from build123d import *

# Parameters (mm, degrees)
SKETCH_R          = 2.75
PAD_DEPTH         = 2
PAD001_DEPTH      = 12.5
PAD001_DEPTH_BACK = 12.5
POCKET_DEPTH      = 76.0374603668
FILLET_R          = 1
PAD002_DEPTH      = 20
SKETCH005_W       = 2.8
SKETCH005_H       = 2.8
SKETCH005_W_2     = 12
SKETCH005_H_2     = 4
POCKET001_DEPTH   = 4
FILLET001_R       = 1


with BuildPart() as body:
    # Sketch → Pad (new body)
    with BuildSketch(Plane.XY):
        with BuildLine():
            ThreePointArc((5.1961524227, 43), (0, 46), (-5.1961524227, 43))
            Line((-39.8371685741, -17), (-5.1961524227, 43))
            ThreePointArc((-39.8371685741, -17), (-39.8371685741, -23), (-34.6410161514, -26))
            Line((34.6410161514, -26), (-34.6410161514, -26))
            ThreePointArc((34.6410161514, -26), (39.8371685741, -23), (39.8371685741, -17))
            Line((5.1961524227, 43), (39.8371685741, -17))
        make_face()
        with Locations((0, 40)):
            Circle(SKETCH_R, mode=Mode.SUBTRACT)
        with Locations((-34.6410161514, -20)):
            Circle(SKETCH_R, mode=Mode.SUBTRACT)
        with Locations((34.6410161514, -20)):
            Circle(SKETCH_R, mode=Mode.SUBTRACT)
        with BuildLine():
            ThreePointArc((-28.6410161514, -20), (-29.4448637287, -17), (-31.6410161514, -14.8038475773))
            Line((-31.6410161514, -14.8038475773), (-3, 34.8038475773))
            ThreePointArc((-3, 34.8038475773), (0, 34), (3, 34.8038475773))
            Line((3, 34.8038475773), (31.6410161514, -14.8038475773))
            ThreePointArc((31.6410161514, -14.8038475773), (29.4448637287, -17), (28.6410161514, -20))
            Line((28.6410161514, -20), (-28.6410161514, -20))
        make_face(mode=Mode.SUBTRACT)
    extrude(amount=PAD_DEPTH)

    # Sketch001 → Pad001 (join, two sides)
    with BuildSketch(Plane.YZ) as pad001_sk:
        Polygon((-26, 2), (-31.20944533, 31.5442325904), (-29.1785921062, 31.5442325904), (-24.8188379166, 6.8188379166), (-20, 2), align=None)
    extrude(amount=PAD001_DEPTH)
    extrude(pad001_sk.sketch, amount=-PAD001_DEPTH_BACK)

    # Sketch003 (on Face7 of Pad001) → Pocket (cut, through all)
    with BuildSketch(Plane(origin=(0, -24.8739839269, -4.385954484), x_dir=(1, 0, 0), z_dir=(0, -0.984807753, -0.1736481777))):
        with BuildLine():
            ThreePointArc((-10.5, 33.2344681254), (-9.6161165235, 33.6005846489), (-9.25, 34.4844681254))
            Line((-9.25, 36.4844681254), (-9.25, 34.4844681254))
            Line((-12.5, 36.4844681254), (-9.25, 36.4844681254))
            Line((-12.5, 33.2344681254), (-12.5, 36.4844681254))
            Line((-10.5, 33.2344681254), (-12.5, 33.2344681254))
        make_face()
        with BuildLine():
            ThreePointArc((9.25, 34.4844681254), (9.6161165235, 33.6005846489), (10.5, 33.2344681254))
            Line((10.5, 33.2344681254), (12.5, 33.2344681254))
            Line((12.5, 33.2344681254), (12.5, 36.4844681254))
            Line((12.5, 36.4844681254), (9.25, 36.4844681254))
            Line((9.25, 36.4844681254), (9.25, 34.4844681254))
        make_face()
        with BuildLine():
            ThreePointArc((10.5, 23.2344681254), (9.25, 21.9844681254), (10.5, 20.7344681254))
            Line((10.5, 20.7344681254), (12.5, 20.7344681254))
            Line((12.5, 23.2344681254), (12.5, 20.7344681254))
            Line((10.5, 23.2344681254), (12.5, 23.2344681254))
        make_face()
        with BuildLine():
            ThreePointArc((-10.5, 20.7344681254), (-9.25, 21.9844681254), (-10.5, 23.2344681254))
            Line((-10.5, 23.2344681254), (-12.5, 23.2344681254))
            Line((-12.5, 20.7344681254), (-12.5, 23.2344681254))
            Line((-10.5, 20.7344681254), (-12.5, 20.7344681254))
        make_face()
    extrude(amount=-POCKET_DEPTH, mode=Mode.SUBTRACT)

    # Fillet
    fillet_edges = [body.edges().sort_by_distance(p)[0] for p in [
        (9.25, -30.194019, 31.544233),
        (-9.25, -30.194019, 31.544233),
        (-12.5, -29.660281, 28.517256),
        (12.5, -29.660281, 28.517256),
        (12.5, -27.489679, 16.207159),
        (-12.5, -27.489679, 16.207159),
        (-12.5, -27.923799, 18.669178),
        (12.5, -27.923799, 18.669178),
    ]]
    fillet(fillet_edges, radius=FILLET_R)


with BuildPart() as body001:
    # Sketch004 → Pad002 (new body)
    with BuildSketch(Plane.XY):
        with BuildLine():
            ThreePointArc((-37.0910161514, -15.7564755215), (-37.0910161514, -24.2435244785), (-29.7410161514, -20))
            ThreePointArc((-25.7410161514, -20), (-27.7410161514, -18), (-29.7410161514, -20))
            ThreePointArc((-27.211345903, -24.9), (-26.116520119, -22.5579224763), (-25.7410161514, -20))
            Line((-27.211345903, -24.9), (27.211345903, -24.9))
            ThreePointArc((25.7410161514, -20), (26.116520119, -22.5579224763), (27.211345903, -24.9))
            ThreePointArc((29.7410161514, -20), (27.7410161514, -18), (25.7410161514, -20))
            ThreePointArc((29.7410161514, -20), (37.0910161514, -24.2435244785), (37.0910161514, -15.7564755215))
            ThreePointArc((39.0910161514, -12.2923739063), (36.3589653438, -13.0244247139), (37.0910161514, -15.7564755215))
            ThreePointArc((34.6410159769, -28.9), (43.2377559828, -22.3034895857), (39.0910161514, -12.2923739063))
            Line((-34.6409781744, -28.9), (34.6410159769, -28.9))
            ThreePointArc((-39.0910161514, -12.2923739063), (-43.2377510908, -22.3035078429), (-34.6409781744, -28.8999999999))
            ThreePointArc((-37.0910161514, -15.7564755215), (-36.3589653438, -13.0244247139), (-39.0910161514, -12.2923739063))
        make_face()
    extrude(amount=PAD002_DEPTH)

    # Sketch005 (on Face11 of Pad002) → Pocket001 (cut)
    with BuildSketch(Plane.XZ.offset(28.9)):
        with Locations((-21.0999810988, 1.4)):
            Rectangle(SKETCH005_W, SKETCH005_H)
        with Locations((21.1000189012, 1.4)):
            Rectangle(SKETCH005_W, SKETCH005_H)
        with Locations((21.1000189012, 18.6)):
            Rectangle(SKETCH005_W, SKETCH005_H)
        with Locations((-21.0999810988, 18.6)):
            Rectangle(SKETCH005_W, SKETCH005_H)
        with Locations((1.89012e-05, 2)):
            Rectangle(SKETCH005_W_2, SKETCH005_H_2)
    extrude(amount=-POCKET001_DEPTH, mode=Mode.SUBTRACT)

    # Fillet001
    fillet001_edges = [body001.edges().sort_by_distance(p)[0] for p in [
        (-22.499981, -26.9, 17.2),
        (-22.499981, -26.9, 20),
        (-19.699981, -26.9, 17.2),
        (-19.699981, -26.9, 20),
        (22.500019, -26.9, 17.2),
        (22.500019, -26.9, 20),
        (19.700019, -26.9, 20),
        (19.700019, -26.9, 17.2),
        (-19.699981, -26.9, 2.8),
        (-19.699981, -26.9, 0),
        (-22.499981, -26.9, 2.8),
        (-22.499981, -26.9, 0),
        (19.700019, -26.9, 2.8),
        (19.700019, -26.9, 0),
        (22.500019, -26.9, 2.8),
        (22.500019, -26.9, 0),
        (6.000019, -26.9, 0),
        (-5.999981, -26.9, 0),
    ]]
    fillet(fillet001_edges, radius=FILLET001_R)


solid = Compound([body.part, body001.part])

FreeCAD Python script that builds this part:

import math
import FreeCAD as App
import Part
import Sketcher
Q = App.Units.Quantity


def edges_at(feature, points):
    """Names of the edges that pass closest to the given points."""
    edges = feature.Shape.Edges
    near = lambda p: min(range(len(edges)), key=lambda i: edges[i].distToShape(Part.Vertex(*p))[0])
    return sorted({f"Edge{near(p) + 1}" for p in points})

doc = App.newDocument("Part")
body = doc.addObject("PartDesign::Body", "Body")

sketch1 = body.newObject("Sketcher::SketchObject", "Sketch")
sketch1.AttachmentSupport = (doc.getObject("XY_Plane"), [""])
sketch1.MapMode = "FlatFace"
sketch1.addGeometry([
    Part.ArcOfCircle(Part.Circle(App.Vector(0, 40, 0), App.Vector(0, 0, 1), 6), math.radians(30), math.radians(150)),
    Part.LineSegment(App.Vector(-5.196152, 43, 0), App.Vector(-39.837169, -17, 0)),
    Part.ArcOfCircle(Part.Circle(App.Vector(-34.641016, -20, 0), App.Vector(0, 0, 1), 6), math.radians(150), math.radians(270)),
    Part.LineSegment(App.Vector(-34.641016, -26, 0), App.Vector(34.641016, -26, 0)),
    Part.ArcOfCircle(Part.Circle(App.Vector(34.641016, -20, 0), App.Vector(0, 0, 1), 6), math.radians(-90), math.radians(30)),
    Part.LineSegment(App.Vector(39.837169, -17, 0), App.Vector(5.196152, 43, 0)),
    Part.Circle(App.Vector(-34.641016, -20, 0), App.Vector(0, 0, 1), 2.75),
    Part.Circle(App.Vector(34.641016, -20, 0), App.Vector(0, 0, 1), 2.75),
    Part.LineSegment(App.Vector(28.641016, -20, 0), App.Vector(-28.641016, -20, 0)),
    Part.ArcOfCircle(Part.Circle(App.Vector(-34.641016, -20, 0), App.Vector(0, 0, 1), 6), math.radians(0), math.radians(60)),
    Part.LineSegment(App.Vector(-31.641016, -14.803848, 0), App.Vector(-3, 34.803848, 0)),
    Part.ArcOfCircle(Part.Circle(App.Vector(0, 40, 0), App.Vector(0, 0, 1), 6), math.radians(-120), math.radians(-60)),
    Part.LineSegment(App.Vector(3, 34.803848, 0), App.Vector(31.641016, -14.803848, 0)),
    Part.ArcOfCircle(Part.Circle(App.Vector(34.641016, -20, 0), App.Vector(0, 0, 1), 6), math.radians(120), math.radians(180)),
    Part.Circle(App.Vector(0, 40, 0), App.Vector(0, 0, 1), 2.75),
], False)
sketch1.addConstraint([
    Sketcher.Constraint("Tangent", 0, 2, 1, 1),
    Sketcher.Constraint("Tangent", 1, 2, 2, 1),
    Sketcher.Constraint("Tangent", 2, 2, 3, 1),
    Sketcher.Constraint("Tangent", 3, 2, 4, 1),
    Sketcher.Constraint("Tangent", 4, 2, 5, 1),
    Sketcher.Constraint("Tangent", 5, 2, 0, 1),
    Sketcher.Constraint("Coincident", 8, 2, 9, 1),
    Sketcher.Constraint("Coincident", 9, 2, 10, 1),
    Sketcher.Constraint("Coincident", 10, 2, 11, 1),
    Sketcher.Constraint("Coincident", 11, 2, 12, 1),
    Sketcher.Constraint("Coincident", 12, 2, 13, 1),
    Sketcher.Constraint("Coincident", 13, 2, 8, 1),
    Sketcher.Constraint("Horizontal", 3),
    Sketcher.Constraint("Horizontal", 8),
    Sketcher.Constraint("Coincident", 6, 3, 2, 3),
    Sketcher.Constraint("Coincident", 7, 3, 4, 3),
    Sketcher.Constraint("Coincident", 9, 3, 2, 3),
    Sketcher.Constraint("Coincident", 11, 3, 0, 3),
    Sketcher.Constraint("Coincident", 13, 3, 4, 3),
    Sketcher.Constraint("Coincident", 14, 3, 0, 3),
    Sketcher.Constraint("Equal", 0, 2),
    Sketcher.Constraint("Equal", 2, 4),
    Sketcher.Constraint("Equal", 6, 7),
    Sketcher.Constraint("Equal", 4, 9),
    Sketcher.Constraint("Equal", 9, 11),
    Sketcher.Constraint("Equal", 11, 13),
    Sketcher.Constraint("Equal", 7, 14),
    Sketcher.Constraint("Symmetric", 1, 2, 4, 2, -2),
    Sketcher.Constraint("Parallel", 1, 10),
    Sketcher.Constraint("Parallel", 5, 12),
    Sketcher.Constraint("Horizontal", 13, 3, 8, 2),
    Sketcher.Constraint("Horizontal", 10, 2, 11, 2),
    Sketcher.Constraint("Radius", 0, 6.0),
    Sketcher.Constraint("Diameter", 6, 5.5),
    Sketcher.Constraint("Angle", 1, Q("-120 deg")),
    Sketcher.Constraint("DistanceY", -1, 1, 0, 3, 40.0),
    Sketcher.Constraint("DistanceY", 2, 3, -1, 1, 20.0),
    Sketcher.Constraint("DistanceX", 10, 2, -1, 1, 3.0),
])
pad1 = body.newObject("PartDesign::Pad", "Pad")
pad1.Profile = sketch1
pad1.Length = 2

sketch2 = body.newObject("Sketcher::SketchObject", "Sketch001")
sketch2.AttachmentSupport = (doc.getObject("YZ_Plane"), [""])
sketch2.MapMode = "FlatFace"
sketch2.addGeometry([
    Part.LineSegment(App.Vector(-31.209445, 31.544233, 0), App.Vector(-26, 2, 0)),
    Part.LineSegment(App.Vector(-26, 2, 0), App.Vector(-20, 2, 0)),
    Part.LineSegment(App.Vector(-20, 2, 0), App.Vector(-24.818838, 6.818838, 0)),
    Part.LineSegment(App.Vector(-24.818838, 6.818838, 0), App.Vector(-29.178592, 31.544233, 0)),
    Part.LineSegment(App.Vector(-29.178592, 31.544233, 0), App.Vector(-31.209445, 31.544233, 0)),
], False)
sketch2.addConstraint([
    Sketcher.Constraint("Coincident", 0, 2, 1, 1),
    Sketcher.Constraint("Coincident", 1, 2, 2, 1),
    Sketcher.Constraint("Coincident", 2, 2, 3, 1),
    Sketcher.Constraint("Coincident", 3, 2, 4, 1),
    Sketcher.Constraint("Coincident", 4, 2, 0, 1),
    Sketcher.Constraint("Horizontal", 1),
    Sketcher.Constraint("Horizontal", 4),
    Sketcher.Constraint("Parallel", 0, 3),
    Sketcher.Constraint("DistanceX", 1, 1, 1, 2, 6.0),
    Sketcher.Constraint("Angle", 0, Q("-80 deg")),
    Sketcher.Constraint("Angle", 2, Q("135 deg")),
    Sketcher.Constraint("Distance", 0, 30.0),
    Sketcher.Constraint("DistanceX", 0, 2, -1, 1, 26.0),
    Sketcher.Constraint("DistanceY", -1, 1, 0, 2, 2.0),
    Sketcher.Constraint("DistanceX", 4, 2, 4, 1, 2.030853),
])
pad2 = body.newObject("PartDesign::Pad", "Pad001")
pad2.Profile = sketch2
pad2.Type = "TwoLengths"
pad2.Length = 12.5
pad2.Length2 = 12.5

sketch3 = body.newObject("Sketcher::SketchObject", "Sketch002")
sketch3.Placement = App.Placement(App.Vector(0, -24.873984, -4.385954), App.Rotation(App.Vector(1, 0, 0), App.Vector(0, -0.173648178, 0.984807753), App.Vector(0, -0.984807753, -0.173648178), "ZXY"))
sketch3.addGeometry([
    Part.ArcOfCircle(Part.Circle(App.Vector(-10.5, 34.484468, 0), App.Vector(0, 0, 1), 1.25), math.radians(-90), math.radians(0)),
    Part.LineSegment(App.Vector(-9.25, 34.484468, 0), App.Vector(-9.25, 36.484468, 0)),
    Part.LineSegment(App.Vector(-9.25, 36.484468, 0), App.Vector(-12.5, 36.484468, 0)),
    Part.LineSegment(App.Vector(-12.5, 36.484468, 0), App.Vector(-12.5, 33.234468, 0)),
    Part.LineSegment(App.Vector(-12.5, 33.234468, 0), App.Vector(-10.5, 33.234468, 0)),
    Part.ArcOfCircle(Part.Circle(App.Vector(10.5, 34.484468, 0), App.Vector(0, 0, 1), 1.25), math.radians(180), math.radians(270)),
    Part.LineSegment(App.Vector(10.5, 33.234468, 0), App.Vector(12.5, 33.234468, 0)),
    Part.LineSegment(App.Vector(12.5, 33.234468, 0), App.Vector(12.5, 36.484468, 0)),
    Part.LineSegment(App.Vector(12.5, 36.484468, 0), App.Vector(9.25, 36.484468, 0)),
    Part.LineSegment(App.Vector(9.25, 36.484468, 0), App.Vector(9.25, 34.484468, 0)),
    Part.ArcOfCircle(Part.Circle(App.Vector(10.5, 21.984468, 0), App.Vector(0, 0, 1), 1.25), math.radians(90), math.radians(270)),
    Part.LineSegment(App.Vector(10.5, 20.734468, 0), App.Vector(12.5, 20.734468, 0)),
    Part.LineSegment(App.Vector(12.5, 20.734468, 0), App.Vector(12.5, 23.234468, 0)),
    Part.LineSegment(App.Vector(12.5, 23.234468, 0), App.Vector(10.5, 23.234468, 0)),
    Part.ArcOfCircle(Part.Circle(App.Vector(-10.5, 21.984468, 0), App.Vector(0, 0, 1), 1.25), math.radians(-90), math.radians(90)),
    Part.LineSegment(App.Vector(-10.5, 23.234468, 0), App.Vector(-12.5, 23.234468, 0)),
    Part.LineSegment(App.Vector(-12.5, 23.234468, 0), App.Vector(-12.5, 20.734468, 0)),
    Part.LineSegment(App.Vector(-12.5, 20.734468, 0), App.Vector(-10.5, 20.734468, 0)),
], False)
sketch3.addConstraint([
    Sketcher.Constraint("Tangent", 0, 2, 1, 1),
    Sketcher.Constraint("Coincident", 1, 2, 2, 1),
    Sketcher.Constraint("Coincident", 2, 2, 3, 1),
    Sketcher.Constraint("Coincident", 3, 2, 4, 1),
    Sketcher.Constraint("Tangent", 4, 2, 0, 1),
    Sketcher.Constraint("Tangent", 5, 2, 6, 1),
    Sketcher.Constraint("Coincident", 6, 2, 7, 1),
    Sketcher.Constraint("Coincident", 7, 2, 8, 1),
    Sketcher.Constraint("Coincident", 8, 2, 9, 1),
    Sketcher.Constraint("Tangent", 9, 2, 5, 1),
    Sketcher.Constraint("Tangent", 10, 2, 11, 1),
    Sketcher.Constraint("Coincident", 11, 2, 12, 1),
    Sketcher.Constraint("Coincident", 12, 2, 13, 1),
    Sketcher.Constraint("Tangent", 13, 2, 10, 1),
    Sketcher.Constraint("Tangent", 14, 2, 15, 1),
    Sketcher.Constraint("Coincident", 15, 2, 16, 1),
    Sketcher.Constraint("Coincident", 16, 2, 17, 1),
    Sketcher.Constraint("Tangent", 17, 2, 14, 1),
    Sketcher.Constraint("Vertical", 1),
    Sketcher.Constraint("Horizontal", 2),
    Sketcher.Constraint("Vertical", 3),
    Sketcher.Constraint("Horizontal", 4),
    Sketcher.Constraint("Horizontal", 6),
    Sketcher.Constraint("Vertical", 7),
    Sketcher.Constraint("Horizontal", 8),
    Sketcher.Constraint("Vertical", 9),
    Sketcher.Constraint("Horizontal", 11),
    Sketcher.Constraint("Vertical", 12),
    Sketcher.Constraint("Horizontal", 13),
    Sketcher.Constraint("Horizontal", 15),
    Sketcher.Constraint("Vertical", 16),
    Sketcher.Constraint("Horizontal", 17),
    Sketcher.Constraint("Equal", 0, 5),
    Sketcher.Constraint("Equal", 5, 10),
    Sketcher.Constraint("Equal", 10, 14),
    Sketcher.Constraint("Symmetric", 0, 3, 5, 3, -2),
    Sketcher.Constraint("Symmetric", 10, 3, 14, 3, -2),
    Sketcher.Constraint("Symmetric", 2, 2, 7, 2, -2),
    Sketcher.Constraint("Vertical", 5, 3, 10, 3),
    Sketcher.Constraint("Vertical", 7, 2, 11, 2),
    Sketcher.Constraint("Vertical", 3, 2, 15, 2),
    Sketcher.Constraint("Equal", 17, 1),
    Sketcher.Constraint("DistanceX", 4, 1, 4, 2, 2.0),
    Sketcher.Constraint("Radius", 0, 1.25),
    Sketcher.Constraint("DistanceX", 0, 3, 5, 3, 21.0),
    Sketcher.Constraint("DistanceY", 12, 2, 6, 2, 10.0),
    Sketcher.Constraint("DistanceY", -1, 1, 0, 3, 34.484468),
])
pocket1 = body.newObject("PartDesign::Pocket", "Pocket")
pocket1.Profile = sketch3
pocket1.Type = "ThroughAll"
doc.recompute()

fillet = body.newObject("PartDesign::Fillet", "Fillet")
fillet.Base = (pocket1, edges_at(pocket1, [
    (9.25, -30.194, 31.544),
    (-9.25, -30.194, 31.544),
    (-12.5, -29.66, 28.517),
    (12.5, -29.66, 28.517),
    (12.5, -27.49, 16.207),
    (-12.5, -27.49, 16.207),
    (-12.5, -27.924, 18.669),
    (12.5, -27.924, 18.669),
]))
fillet.Radius = 1
body2 = doc.addObject("PartDesign::Body", "Body001")

sketch4 = body2.newObject("Sketcher::SketchObject", "Sketch003")
sketch4.AttachmentSupport = (doc.getObject("XY_Plane001"), [""])
sketch4.MapMode = "FlatFace"
sketch4.addGeometry([
    Part.ArcOfCircle(Part.Circle(App.Vector(-34.641016, -20, 0), App.Vector(0, 0, 1), 4.9), math.radians(120), math.radians(360)),
    Part.ArcOfCircle(Part.Circle(App.Vector(-38.091016, -14.024425, 0), App.Vector(0, 0, 1), 2), math.radians(-60), math.radians(120)),
    Part.ArcOfCircle(Part.Circle(App.Vector(-34.641016, -20, 0), App.Vector(0, 0, 1), 8.9), math.radians(120), math.radians(270.000244)),
    Part.LineSegment(App.Vector(-34.640978, -28.9, 0), App.Vector(34.641016, -28.9, 0)),
    Part.ArcOfCircle(Part.Circle(App.Vector(34.641016, -20, 0), App.Vector(0, 0, 1), 8.9), math.radians(-90.000001), math.radians(60)),
    Part.ArcOfCircle(Part.Circle(App.Vector(38.091016, -14.024425, 0), App.Vector(0, 0, 1), 2), math.radians(60), math.radians(240)),
    Part.ArcOfCircle(Part.Circle(App.Vector(34.641016, -20, 0), App.Vector(0, 0, 1), 4.9), math.radians(180), math.radians(420)),
    Part.ArcOfCircle(Part.Circle(App.Vector(27.741016, -20, 0), App.Vector(0, 0, 1), 2), math.radians(0), math.radians(180)),
    Part.ArcOfCircle(Part.Circle(App.Vector(34.641016, -20, 0), App.Vector(0, 0, 1), 8.9), math.radians(180), math.radians(213.405563)),
    Part.LineSegment(App.Vector(27.211346, -24.9, 0), App.Vector(-27.211346, -24.9, 0)),
    Part.ArcOfCircle(Part.Circle(App.Vector(-34.641016, -20, 0), App.Vector(0, 0, 1), 8.9), math.radians(-33.405563), math.radians(0)),
    Part.ArcOfCircle(Part.Circle(App.Vector(-27.741016, -20, 0), App.Vector(0, 0, 1), 2), math.radians(0), math.radians(180)),
], False)
sketch4.addConstraint([
    Sketcher.Constraint("Tangent", 0, 1, 1, 1),
    Sketcher.Constraint("Tangent", 1, 2, 2, 1),
    Sketcher.Constraint("Coincident", 2, 2, 3, 1),
    Sketcher.Constraint("Tangent", 3, 2, 4, 1),
    Sketcher.Constraint("Tangent", 4, 2, 5, 1),
    Sketcher.Constraint("Tangent", 5, 2, 6, 2),
    Sketcher.Constraint("Tangent", 6, 1, 7, 1),
    Sketcher.Constraint("Tangent", 7, 2, 8, 1),
    Sketcher.Constraint("Coincident", 8, 2, 9, 1),
    Sketcher.Constraint("Coincident", 9, 2, 10, 1),
    Sketcher.Constraint("Tangent", 10, 2, 11, 1),
    Sketcher.Constraint("Tangent", 11, 2, 0, 2),
    Sketcher.Constraint("Horizontal", 3),
    Sketcher.Constraint("Horizontal", 9),
    Sketcher.Constraint("Coincident", 2, 3, 0, 3),
    Sketcher.Constraint("Coincident", 6, 3, 4, 3),
    Sketcher.Constraint("Coincident", 8, 3, 4, 3),
    Sketcher.Constraint("Coincident", 10, 3, 0, 3),
    Sketcher.Constraint("Equal", 2, 4),
    Sketcher.Constraint("Equal", 1, 5),
    Sketcher.Constraint("Equal", 5, 7),
    Sketcher.Constraint("Equal", 8, 10),
    Sketcher.Constraint("Symmetric", 1, 3, 5, 3, -2),
    Sketcher.Constraint("Horizontal", 6, 3, 7, 3),
    Sketcher.Constraint("Horizontal", 10, 3, 11, 3),
    Sketcher.Constraint("Radius", 1, 2.0),
    Sketcher.Constraint("Radius", 0, 4.9),
    Sketcher.Constraint("DistanceY", 0, 3, -1, 1, 20.0),
    Sketcher.Constraint("DistanceX", 1, 3, 0, 1, 1.0),
    Sketcher.Constraint("DistanceY", 3, 2, 8, 2, 4.0),
    Sketcher.Constraint("DistanceX", 9, 2, 9, 1, 54.422692),
    Sketcher.Constraint("DistanceX", 3, 1, 3, 2, 69.281994),
])
pad3 = body2.newObject("PartDesign::Pad", "Pad002")
pad3.Profile = sketch4
pad3.Length = 20

sketch5 = body2.newObject("Sketcher::SketchObject", "Sketch004")
sketch5.AttachmentSupport = (doc.getObject("XZ_Plane001"), [""])
sketch5.MapMode = "FlatFace"
sketch5.AttachmentOffset = App.Placement(App.Vector(0, 0, 28.9), App.Rotation())
sketch5.addGeometry([
    Part.LineSegment(App.Vector(-22.499981, 2.8, 0), App.Vector(-22.499981, 0, 0)),
    Part.LineSegment(App.Vector(-22.499981, 0, 0), App.Vector(-19.699981, 0, 0)),
    Part.LineSegment(App.Vector(-19.699981, 0, 0), App.Vector(-19.699981, 2.8, 0)),
    Part.LineSegment(App.Vector(-19.699981, 2.8, 0), App.Vector(-22.499981, 2.8, 0)),
    Part.LineSegment(App.Vector(19.700019, 2.8, 0), App.Vector(19.700019, 0, 0)),
    Part.LineSegment(App.Vector(19.700019, 0, 0), App.Vector(22.500019, 0, 0)),
    Part.LineSegment(App.Vector(22.500019, 0, 0), App.Vector(22.500019, 2.8, 0)),
    Part.LineSegment(App.Vector(22.500019, 2.8, 0), App.Vector(19.700019, 2.8, 0)),
    Part.LineSegment(App.Vector(19.700019, 20, 0), App.Vector(19.700019, 17.2, 0)),
    Part.LineSegment(App.Vector(19.700019, 17.2, 0), App.Vector(22.500019, 17.2, 0)),
    Part.LineSegment(App.Vector(22.500019, 17.2, 0), App.Vector(22.500019, 20, 0)),
    Part.LineSegment(App.Vector(22.500019, 20, 0), App.Vector(19.700019, 20, 0)),
    Part.LineSegment(App.Vector(-22.499981, 20, 0), App.Vector(-22.499981, 17.2, 0)),
    Part.LineSegment(App.Vector(-22.499981, 17.2, 0), App.Vector(-19.699981, 17.2, 0)),
    Part.LineSegment(App.Vector(-19.699981, 17.2, 0), App.Vector(-19.699981, 20, 0)),
    Part.LineSegment(App.Vector(-19.699981, 20, 0), App.Vector(-22.499981, 20, 0)),
    Part.LineSegment(App.Vector(-5.999981, 4, 0), App.Vector(-5.999981, 0, 0)),
    Part.LineSegment(App.Vector(-5.999981, 0, 0), App.Vector(6.000019, 0, 0)),
    Part.LineSegment(App.Vector(6.000019, 0, 0), App.Vector(6.000019, 4, 0)),
    Part.LineSegment(App.Vector(6.000019, 4, 0), App.Vector(-5.999981, 4, 0)),
], False)
sketch5.addConstraint([
    Sketcher.Constraint("Coincident", 0, 2, 1, 1),
    Sketcher.Constraint("Coincident", 1, 2, 2, 1),
    Sketcher.Constraint("Coincident", 2, 2, 3, 1),
    Sketcher.Constraint("Coincident", 3, 2, 0, 1),
    Sketcher.Constraint("Coincident", 4, 2, 5, 1),
    Sketcher.Constraint("Coincident", 5, 2, 6, 1),
    Sketcher.Constraint("Coincident", 6, 2, 7, 1),
    Sketcher.Constraint("Coincident", 7, 2, 4, 1),
    Sketcher.Constraint("Coincident", 8, 2, 9, 1),
    Sketcher.Constraint("Coincident", 9, 2, 10, 1),
    Sketcher.Constraint("Coincident", 10, 2, 11, 1),
    Sketcher.Constraint("Coincident", 11, 2, 8, 1),
    Sketcher.Constraint("Coincident", 12, 2, 13, 1),
    Sketcher.Constraint("Coincident", 13, 2, 14, 1),
    Sketcher.Constraint("Coincident", 14, 2, 15, 1),
    Sketcher.Constraint("Coincident", 15, 2, 12, 1),
    Sketcher.Constraint("Coincident", 16, 2, 17, 1),
    Sketcher.Constraint("Coincident", 17, 2, 18, 1),
    Sketcher.Constraint("Coincident", 18, 2, 19, 1),
    Sketcher.Constraint("Coincident", 19, 2, 16, 1),
    Sketcher.Constraint("Vertical", 0),
    Sketcher.Constraint("Horizontal", 1),
    Sketcher.Constraint("Vertical", 2),
    Sketcher.Constraint("Horizontal", 3),
    Sketcher.Constraint("Vertical", 4),
    Sketcher.Constraint("Horizontal", 5),
    Sketcher.Constraint("Vertical", 6),
    Sketcher.Constraint("Horizontal", 7),
    Sketcher.Constraint("Vertical", 8),
    Sketcher.Constraint("Horizontal", 9),
    Sketcher.Constraint("Vertical", 10),
    Sketcher.Constraint("Horizontal", 11),
    Sketcher.Constraint("Vertical", 12),
    Sketcher.Constraint("Horizontal", 13),
    Sketcher.Constraint("Vertical", 14),
    Sketcher.Constraint("Horizontal", 15),
    Sketcher.Constraint("Vertical", 16),
    Sketcher.Constraint("Horizontal", 17),
    Sketcher.Constraint("Vertical", 18),
    Sketcher.Constraint("Horizontal", 19),
    Sketcher.Constraint("PointOnObject", 0, 2, -1),
    Sketcher.Constraint("PointOnObject", 4, 2, -1),
    Sketcher.Constraint("PointOnObject", 16, 2, -1),
    Sketcher.Constraint("Horizontal", 3, 2, 6, 2),
    Sketcher.Constraint("Horizontal", 9, 2, 12, 2),
    Sketcher.Constraint("Horizontal", 11, 2, 14, 2),
    Sketcher.Constraint("Vertical", 7, 2, 8, 2),
    Sketcher.Constraint("Vertical", 6, 2, 9, 2),
    Sketcher.Constraint("Vertical", 3, 2, 12, 2),
    Sketcher.Constraint("Vertical", 2, 2, 13, 2),
    Sketcher.Constraint("Equal", 3, 5),
    Sketcher.Constraint("Equal", 15, 0),
    Sketcher.Constraint("Equal", 6, 8),
    Sketcher.Constraint("DistanceX", 17, 1, 17, 2, 12.0),
    Sketcher.Constraint("DistanceY", 16, 2, 16, 1, 4.0),
    Sketcher.Constraint("DistanceX", 1, 1, 1, 2, 2.8),
    Sketcher.Constraint("DistanceY", -1, 1, 10, 2, 20.0),
    Sketcher.Constraint("DistanceX", 0, 2, 5, 2, 45.0),
    Sketcher.Constraint("DistanceX", 1, 2, 16, 2, 13.7),
    Sketcher.Constraint("DistanceX", 0, 2, -1, 1, 22.499981),
])
pocket2 = body2.newObject("PartDesign::Pocket", "Pocket001")
pocket2.Profile = sketch5
pocket2.Length = 4
doc.recompute()

fillet2 = body2.newObject("PartDesign::Fillet", "Fillet001")
fillet2.Base = (pocket2, edges_at(pocket2, [
    (-22.5, -26.9, 17.2),
    (-22.5, -26.9, 20),
    (-19.7, -26.9, 17.2),
    (-19.7, -26.9, 20),
    (22.5, -26.9, 17.2),
    (22.5, -26.9, 20),
    (19.7, -26.9, 20),
    (19.7, -26.9, 17.2),
    (-19.7, -26.9, 2.8),
    (-19.7, -26.9, 0),
    (-22.5, -26.9, 2.8),
    (-22.5, -26.9, 0),
    (19.7, -26.9, 2.8),
    (19.7, -26.9, 0),
    (22.5, -26.9, 2.8),
    (22.5, -26.9, 0),
    (6, -26.9, 0),
    (-6, -26.9, 0),
]))
fillet2.Radius = 1

doc.recompute()
